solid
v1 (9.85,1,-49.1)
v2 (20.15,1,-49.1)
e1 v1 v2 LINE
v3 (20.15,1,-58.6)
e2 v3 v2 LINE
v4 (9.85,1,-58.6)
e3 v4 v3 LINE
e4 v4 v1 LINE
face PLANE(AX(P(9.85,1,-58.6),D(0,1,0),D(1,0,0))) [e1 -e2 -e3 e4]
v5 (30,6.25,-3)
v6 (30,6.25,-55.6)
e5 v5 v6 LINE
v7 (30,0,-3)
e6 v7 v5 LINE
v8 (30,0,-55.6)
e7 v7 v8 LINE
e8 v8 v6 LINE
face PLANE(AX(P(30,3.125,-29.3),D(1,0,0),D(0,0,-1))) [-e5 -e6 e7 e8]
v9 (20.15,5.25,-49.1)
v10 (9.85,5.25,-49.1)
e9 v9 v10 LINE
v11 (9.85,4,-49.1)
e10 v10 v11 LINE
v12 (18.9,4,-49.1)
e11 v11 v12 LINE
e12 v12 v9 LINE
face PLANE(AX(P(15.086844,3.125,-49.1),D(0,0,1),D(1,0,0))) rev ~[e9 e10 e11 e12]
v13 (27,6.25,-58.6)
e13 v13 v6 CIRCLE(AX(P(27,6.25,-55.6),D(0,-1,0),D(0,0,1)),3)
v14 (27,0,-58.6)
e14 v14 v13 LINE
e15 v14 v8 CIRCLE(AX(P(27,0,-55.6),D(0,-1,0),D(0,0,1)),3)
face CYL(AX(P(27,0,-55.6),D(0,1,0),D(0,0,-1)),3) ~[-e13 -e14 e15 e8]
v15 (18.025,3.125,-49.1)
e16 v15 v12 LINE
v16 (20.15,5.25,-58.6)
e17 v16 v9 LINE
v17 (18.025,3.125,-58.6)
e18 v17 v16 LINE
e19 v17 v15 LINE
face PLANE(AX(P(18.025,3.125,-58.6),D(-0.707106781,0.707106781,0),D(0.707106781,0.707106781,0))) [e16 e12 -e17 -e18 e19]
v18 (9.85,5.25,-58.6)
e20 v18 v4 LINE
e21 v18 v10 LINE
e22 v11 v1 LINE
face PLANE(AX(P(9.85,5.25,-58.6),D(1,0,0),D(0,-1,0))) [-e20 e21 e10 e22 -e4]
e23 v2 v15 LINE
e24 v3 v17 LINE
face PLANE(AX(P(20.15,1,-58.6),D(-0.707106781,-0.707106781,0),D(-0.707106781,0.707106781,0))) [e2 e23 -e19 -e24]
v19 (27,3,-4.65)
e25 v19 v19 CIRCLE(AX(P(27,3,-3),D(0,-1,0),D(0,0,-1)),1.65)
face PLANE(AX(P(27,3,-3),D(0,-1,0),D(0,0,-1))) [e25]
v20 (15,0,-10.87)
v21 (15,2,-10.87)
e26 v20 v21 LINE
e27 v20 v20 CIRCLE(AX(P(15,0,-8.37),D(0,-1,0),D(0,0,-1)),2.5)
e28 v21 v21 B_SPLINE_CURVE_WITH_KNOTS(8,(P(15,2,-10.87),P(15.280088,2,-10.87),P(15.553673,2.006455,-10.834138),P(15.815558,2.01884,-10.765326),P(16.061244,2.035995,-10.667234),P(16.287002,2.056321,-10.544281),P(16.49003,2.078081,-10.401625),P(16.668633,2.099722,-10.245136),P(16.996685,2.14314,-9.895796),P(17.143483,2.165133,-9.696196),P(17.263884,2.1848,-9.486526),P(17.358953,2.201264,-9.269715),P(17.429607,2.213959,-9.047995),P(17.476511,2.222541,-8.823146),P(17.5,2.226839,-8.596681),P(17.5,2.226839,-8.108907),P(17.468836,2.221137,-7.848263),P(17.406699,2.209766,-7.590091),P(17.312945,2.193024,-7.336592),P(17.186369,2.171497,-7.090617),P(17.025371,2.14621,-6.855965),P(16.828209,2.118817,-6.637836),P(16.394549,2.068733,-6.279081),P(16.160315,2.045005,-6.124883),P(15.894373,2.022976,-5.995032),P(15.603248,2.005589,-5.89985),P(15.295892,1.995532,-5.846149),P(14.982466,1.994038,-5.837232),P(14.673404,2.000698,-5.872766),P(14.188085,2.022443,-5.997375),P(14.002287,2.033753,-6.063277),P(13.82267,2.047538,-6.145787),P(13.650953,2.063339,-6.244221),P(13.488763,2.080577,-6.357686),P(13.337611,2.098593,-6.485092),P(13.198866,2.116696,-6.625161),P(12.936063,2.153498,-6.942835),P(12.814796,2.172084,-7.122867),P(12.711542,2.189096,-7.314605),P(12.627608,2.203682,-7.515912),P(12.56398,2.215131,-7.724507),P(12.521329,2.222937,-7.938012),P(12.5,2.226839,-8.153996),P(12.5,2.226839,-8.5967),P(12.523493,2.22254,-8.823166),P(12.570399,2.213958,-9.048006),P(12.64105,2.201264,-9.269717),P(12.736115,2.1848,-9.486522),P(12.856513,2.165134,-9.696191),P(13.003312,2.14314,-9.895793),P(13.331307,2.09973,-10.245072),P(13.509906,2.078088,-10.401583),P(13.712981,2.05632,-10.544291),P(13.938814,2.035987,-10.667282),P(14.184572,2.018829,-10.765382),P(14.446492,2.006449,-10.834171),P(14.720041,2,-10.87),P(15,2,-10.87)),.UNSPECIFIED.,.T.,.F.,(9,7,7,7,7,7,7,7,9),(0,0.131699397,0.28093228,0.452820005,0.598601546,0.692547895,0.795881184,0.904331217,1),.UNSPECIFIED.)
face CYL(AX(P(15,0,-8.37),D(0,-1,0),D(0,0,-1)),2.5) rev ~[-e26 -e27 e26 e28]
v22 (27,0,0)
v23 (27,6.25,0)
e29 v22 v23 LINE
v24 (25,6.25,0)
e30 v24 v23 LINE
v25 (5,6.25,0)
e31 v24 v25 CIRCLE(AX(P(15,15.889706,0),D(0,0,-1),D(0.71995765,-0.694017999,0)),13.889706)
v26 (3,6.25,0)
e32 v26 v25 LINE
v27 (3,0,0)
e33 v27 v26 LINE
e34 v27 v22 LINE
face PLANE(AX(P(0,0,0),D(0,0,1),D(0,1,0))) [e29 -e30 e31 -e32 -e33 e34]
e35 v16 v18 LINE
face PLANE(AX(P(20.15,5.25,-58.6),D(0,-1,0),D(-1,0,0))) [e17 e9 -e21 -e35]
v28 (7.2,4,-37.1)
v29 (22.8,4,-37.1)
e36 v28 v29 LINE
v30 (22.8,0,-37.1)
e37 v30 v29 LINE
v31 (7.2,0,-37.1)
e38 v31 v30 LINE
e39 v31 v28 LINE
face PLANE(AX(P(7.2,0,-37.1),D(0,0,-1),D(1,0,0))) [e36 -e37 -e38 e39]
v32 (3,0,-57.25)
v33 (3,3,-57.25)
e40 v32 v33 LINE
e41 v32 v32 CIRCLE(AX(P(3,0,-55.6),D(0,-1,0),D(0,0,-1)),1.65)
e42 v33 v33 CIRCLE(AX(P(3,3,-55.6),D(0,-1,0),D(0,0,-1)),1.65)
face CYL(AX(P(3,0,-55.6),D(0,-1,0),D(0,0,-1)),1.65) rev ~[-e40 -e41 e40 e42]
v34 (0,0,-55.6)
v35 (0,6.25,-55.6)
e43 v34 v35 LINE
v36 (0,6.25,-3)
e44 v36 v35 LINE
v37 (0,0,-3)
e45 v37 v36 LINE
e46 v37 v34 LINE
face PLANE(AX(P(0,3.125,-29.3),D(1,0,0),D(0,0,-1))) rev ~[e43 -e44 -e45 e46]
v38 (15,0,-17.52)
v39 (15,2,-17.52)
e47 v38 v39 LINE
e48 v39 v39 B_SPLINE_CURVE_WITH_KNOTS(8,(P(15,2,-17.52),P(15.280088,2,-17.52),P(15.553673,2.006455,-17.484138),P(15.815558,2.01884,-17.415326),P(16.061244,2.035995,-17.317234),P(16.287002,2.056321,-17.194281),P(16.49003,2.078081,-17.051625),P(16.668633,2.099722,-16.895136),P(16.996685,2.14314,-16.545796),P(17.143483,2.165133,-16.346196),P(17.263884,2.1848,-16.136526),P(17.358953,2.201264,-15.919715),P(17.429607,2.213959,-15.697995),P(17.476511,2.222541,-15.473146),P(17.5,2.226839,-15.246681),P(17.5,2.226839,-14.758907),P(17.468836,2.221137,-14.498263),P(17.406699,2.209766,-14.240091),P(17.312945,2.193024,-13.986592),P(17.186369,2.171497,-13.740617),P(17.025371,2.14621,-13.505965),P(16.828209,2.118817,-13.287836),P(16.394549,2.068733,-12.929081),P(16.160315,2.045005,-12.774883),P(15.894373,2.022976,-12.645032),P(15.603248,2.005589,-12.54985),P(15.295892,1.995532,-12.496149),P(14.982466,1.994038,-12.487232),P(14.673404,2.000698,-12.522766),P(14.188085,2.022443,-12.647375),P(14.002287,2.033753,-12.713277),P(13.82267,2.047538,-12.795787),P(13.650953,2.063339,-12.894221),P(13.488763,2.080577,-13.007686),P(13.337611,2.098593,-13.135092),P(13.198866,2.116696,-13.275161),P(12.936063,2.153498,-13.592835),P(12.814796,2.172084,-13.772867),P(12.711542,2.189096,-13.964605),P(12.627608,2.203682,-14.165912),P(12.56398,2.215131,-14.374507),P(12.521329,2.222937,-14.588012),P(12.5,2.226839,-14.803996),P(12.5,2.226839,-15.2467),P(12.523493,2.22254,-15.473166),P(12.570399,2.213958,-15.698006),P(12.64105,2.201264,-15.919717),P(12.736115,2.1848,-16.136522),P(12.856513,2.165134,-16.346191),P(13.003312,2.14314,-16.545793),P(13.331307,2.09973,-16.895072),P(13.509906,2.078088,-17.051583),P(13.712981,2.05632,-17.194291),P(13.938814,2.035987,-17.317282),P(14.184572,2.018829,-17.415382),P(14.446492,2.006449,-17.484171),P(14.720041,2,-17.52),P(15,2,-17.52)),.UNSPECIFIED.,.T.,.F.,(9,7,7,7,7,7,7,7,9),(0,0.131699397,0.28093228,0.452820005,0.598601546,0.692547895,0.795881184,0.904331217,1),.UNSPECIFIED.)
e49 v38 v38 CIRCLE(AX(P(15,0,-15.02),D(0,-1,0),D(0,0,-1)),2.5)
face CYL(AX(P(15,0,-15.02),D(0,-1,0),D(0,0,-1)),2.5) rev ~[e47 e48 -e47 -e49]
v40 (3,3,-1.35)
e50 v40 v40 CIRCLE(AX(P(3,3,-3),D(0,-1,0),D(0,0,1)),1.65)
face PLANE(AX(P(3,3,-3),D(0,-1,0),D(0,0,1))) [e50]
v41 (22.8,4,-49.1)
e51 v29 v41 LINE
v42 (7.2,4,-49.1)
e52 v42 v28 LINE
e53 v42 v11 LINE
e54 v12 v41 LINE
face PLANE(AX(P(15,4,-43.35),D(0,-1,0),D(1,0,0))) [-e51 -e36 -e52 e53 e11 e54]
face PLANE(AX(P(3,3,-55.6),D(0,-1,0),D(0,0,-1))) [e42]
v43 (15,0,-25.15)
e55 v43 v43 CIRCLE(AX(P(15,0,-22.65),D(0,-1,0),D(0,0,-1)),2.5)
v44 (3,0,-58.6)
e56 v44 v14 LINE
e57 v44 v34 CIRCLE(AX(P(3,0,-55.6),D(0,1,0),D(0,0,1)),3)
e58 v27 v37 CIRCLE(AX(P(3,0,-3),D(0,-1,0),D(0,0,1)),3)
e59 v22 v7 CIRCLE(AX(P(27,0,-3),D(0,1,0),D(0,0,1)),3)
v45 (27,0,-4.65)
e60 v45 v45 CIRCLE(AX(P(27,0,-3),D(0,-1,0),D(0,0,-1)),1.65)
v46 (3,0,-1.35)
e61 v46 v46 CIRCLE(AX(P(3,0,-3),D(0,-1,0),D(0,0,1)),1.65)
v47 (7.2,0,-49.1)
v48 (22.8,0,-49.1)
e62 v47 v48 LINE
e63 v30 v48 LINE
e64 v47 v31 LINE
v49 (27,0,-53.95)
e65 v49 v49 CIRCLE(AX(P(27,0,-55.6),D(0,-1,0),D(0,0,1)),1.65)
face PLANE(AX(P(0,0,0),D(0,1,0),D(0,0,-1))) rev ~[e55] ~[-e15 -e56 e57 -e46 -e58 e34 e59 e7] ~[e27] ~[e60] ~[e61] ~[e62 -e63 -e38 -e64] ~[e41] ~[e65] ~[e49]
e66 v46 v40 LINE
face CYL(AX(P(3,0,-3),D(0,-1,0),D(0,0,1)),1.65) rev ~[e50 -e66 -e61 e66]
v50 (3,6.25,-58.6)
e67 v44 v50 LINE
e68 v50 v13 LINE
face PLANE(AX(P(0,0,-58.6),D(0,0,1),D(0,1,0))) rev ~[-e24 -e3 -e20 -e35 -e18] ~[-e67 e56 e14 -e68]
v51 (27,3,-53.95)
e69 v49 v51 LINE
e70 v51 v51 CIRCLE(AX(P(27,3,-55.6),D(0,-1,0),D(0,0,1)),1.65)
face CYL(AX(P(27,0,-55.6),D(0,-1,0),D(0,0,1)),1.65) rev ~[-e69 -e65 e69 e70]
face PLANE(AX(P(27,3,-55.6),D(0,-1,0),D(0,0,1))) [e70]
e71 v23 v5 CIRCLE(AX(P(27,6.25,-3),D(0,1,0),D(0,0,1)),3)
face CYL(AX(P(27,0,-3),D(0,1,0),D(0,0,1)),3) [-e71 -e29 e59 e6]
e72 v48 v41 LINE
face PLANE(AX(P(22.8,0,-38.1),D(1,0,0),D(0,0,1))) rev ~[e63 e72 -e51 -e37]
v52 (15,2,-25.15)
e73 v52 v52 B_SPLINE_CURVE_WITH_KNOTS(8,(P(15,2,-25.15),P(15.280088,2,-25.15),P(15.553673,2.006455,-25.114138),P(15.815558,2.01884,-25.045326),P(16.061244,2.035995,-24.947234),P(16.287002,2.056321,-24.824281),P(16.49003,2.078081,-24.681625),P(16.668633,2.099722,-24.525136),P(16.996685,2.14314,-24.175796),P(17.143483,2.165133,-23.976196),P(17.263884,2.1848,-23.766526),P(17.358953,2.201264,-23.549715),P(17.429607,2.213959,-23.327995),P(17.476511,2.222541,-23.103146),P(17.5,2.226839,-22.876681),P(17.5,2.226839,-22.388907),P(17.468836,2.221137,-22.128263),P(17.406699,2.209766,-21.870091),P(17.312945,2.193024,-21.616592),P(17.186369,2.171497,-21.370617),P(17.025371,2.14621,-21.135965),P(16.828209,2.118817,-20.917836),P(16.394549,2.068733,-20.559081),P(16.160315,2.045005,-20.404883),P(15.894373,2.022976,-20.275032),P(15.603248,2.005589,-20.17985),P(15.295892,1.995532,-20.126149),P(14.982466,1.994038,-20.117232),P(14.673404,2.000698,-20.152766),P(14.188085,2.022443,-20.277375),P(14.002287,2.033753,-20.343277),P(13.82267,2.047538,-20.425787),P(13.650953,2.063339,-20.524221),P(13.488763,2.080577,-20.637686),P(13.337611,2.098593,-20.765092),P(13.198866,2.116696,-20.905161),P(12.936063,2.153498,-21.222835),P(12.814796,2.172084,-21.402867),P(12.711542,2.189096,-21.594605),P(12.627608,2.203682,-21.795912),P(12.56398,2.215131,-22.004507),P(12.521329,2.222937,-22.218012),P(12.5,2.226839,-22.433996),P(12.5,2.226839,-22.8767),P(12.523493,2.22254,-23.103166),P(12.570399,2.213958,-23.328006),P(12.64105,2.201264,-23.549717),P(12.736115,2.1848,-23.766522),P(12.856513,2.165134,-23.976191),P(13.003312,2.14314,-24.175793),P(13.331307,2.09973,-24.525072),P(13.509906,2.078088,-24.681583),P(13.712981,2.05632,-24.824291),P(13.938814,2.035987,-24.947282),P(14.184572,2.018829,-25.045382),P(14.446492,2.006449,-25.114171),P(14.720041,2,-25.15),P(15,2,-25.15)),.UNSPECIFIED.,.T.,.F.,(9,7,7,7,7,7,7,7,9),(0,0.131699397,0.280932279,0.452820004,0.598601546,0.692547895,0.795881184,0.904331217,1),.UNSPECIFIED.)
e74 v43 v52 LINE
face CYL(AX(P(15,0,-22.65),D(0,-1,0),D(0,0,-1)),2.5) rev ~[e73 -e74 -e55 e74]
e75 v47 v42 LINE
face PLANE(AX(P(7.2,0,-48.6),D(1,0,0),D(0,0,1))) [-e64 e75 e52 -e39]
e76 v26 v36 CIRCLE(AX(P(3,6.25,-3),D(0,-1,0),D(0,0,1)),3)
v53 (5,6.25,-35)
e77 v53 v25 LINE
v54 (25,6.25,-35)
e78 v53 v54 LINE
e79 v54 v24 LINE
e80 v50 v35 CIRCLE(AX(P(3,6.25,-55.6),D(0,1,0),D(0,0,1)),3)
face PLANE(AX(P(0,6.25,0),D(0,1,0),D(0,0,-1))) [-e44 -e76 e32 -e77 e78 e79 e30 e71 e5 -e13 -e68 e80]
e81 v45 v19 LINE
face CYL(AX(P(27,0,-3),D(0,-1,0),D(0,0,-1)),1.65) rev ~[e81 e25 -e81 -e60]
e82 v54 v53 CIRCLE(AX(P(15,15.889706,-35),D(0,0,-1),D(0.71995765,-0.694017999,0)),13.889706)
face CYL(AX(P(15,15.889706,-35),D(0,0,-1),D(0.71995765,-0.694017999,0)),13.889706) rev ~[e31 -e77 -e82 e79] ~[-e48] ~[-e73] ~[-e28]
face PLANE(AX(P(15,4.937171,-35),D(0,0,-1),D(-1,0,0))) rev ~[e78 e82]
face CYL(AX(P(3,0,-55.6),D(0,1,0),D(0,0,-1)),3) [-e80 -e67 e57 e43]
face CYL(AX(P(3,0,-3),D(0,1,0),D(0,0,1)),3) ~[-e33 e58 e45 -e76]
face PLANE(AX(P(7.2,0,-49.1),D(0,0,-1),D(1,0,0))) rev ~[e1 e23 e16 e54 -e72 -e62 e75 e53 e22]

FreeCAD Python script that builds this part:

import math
import FreeCAD as App
import Part
import Sketcher
Q = App.Units.Quantity


def edges_at(feature, points):
    """Names of the edges that pass closest to the given points."""
    edges = feature.Shape.Edges
    near = lambda p: min(range(len(edges)), key=lambda i: edges[i].distToShape(Part.Vertex(*p))[0])
    return sorted({f"Edge{near(p) + 1}" for p in points})

doc = App.newDocument("Part")
body = doc.addObject("PartDesign::Body", "Body")

# Sketch on YZ plane
sketch1 = doc.addObject("Sketcher::SketchObject", "Sketch")
body.addObject(sketch1)
sketch1.AttachmentSupport = (doc.YZ_Plane, [""])
sketch1.MapMode = "FlatFace"
sketch1.addGeometry(Part.LineSegment(App.Vector(6, 0, 0), App.Vector(0, 0, 0)), False)
sketch1.addGeometry(Part.LineSegment(App.Vector(0, 0, 0), App.Vector(0, -59, 0)), False)
sketch1.addGeometry(Part.LineSegment(App.Vector(0, -59, 0), App.Vector(6, -59, 0)), False)
sketch1.addGeometry(Part.LineSegment(App.Vector(6, -59, 0), App.Vector(6, 0, 0)), False)
sketch1.addConstraint(Sketcher.Constraint("Coincident", 0, 2, 1, 1))
sketch1.addConstraint(Sketcher.Constraint("Coincident", 1, 2, 2, 1))
sketch1.addConstraint(Sketcher.Constraint("Coincident", 2, 2, 3, 1))
sketch1.addConstraint(Sketcher.Constraint("Coincident", 3, 2, 0, 1))
sketch1.addConstraint(Sketcher.Constraint("Horizontal", 0))
sketch1.addConstraint(Sketcher.Constraint("Vertical", 1))
sketch1.addConstraint(Sketcher.Constraint("Horizontal", 2))
sketch1.addConstraint(Sketcher.Constraint("Vertical", 3))
sketch1.addConstraint(Sketcher.Constraint("Coincident", 0, 2, -1, 1))
sketch1.addConstraint(Sketcher.Constraint("DistanceY", 1, 2, 1, 1, Q("58.6 mm")))
sketch1.addConstraint(Sketcher.Constraint("DistanceX", 0, 2, 0, 1, Q("6.25 mm")))
pad1 = doc.addObject("PartDesign::Pad", "Pad")
body.addObject(pad1)
pad1.Profile = sketch1
pad1.Length = 30

# Sketch on XY plane
sketch2 = doc.addObject("Sketcher::SketchObject", "Sketch001")
body.addObject(sketch2)
sketch2.AttachmentSupport = (doc.XY_Plane, [""])
sketch2.MapMode = "FlatFace"
sketch2.addGeometry(Part.LineSegment(App.Vector(25, 6, 0), App.Vector(5, 6, 0)), False)
sketch2.addGeometry(Part.ArcOfCircle(Part.Circle(App.Vector(15, 16, 0), App.Vector(0, 0, 1), 14), math.radians(-136), math.radians(-44)), False)
sketch2.addConstraint(Sketcher.Constraint("Coincident", 0, 1, 1, 2))
sketch2.addConstraint(Sketcher.Constraint("Coincident", 1, 1, 0, 2))
sketch2.addConstraint(Sketcher.Constraint("Horizontal", 0))
sketch2.addConstraint(Sketcher.Constraint("DistanceX", 0, 2, 0, 1, Q("20 mm")))
sketch2.addConstraint(Sketcher.Constraint("DistanceX", -1, 1, 1, 3, Q("15 mm")))
sketch2.addConstraint(Sketcher.Constraint("DistanceY", -1, 1, 0, 1, Q("6.25 mm")))
sketch2.addConstraint(Sketcher.Constraint("Radius", 1, Q("13.889706 mm")))
pocket1 = doc.addObject("PartDesign::Pocket", "Pocket")
body.addObject(pocket1)
pocket1.Profile = sketch2
pocket1.Type = "TwoLengths"
pocket1.Length = 67.128833
pocket1.Length2 = 35
pocket1.Reversed = True

# Sketch on XZ plane
sketch3 = doc.addObject("Sketcher::SketchObject", "Sketch002")
body.addObject(sketch3)
sketch3.AttachmentSupport = (doc.XZ_Plane, [""])
sketch3.MapMode = "FlatFace"
sketch3.addGeometry(Part.Circle(App.Vector(15, -8.4, 0), App.Vector(0, 0, 1), 2.5), False)
sketch3.addGeometry(Part.Circle(App.Vector(15, -15, 0), App.Vector(0, 0, 1), 2.5), False)
sketch3.addGeometry(Part.Circle(App.Vector(15, -22.6, 0), App.Vector(0, 0, 1), 2.5), False)
sketch3.addGeometry(Part.LineSegment(App.Vector(7.2, -38.1, 0), App.Vector(7.2, -48.6, 0)), False)
sketch3.addGeometry(Part.LineSegment(App.Vector(7.2, -48.6, 0), App.Vector(22.8, -48.6, 0)), False)
sketch3.addGeometry(Part.LineSegment(App.Vector(22.8, -48.6, 0), App.Vector(22.8, -38.1, 0)), False)
sketch3.addGeometry(Part.LineSegment(App.Vector(22.8, -38.1, 0), App.Vector(7.2, -38.1, 0)), False)
sketch3.addConstraint(Sketcher.Constraint("Coincident", 3, 2, 4, 1))
sketch3.addConstraint(Sketcher.Constraint("Coincident", 4, 2, 5, 1))
sketch3.addConstraint(Sketcher.Constraint("Coincident", 5, 2, 6, 1))
sketch3.addConstraint(Sketcher.Constraint("Coincident", 6, 2, 3, 1))
sketch3.addConstraint(Sketcher.Constraint("Vertical", 3))
sketch3.addConstraint(Sketcher.Constraint("Horizontal", 4))
sketch3.addConstraint(Sketcher.Constraint("Vertical", 5))
sketch3.addConstraint(Sketcher.Constraint("Horizontal", 6))
sketch3.addConstraint(Sketcher.Constraint("Equal", 0, 1))
sketch3.addConstraint(Sketcher.Constraint("Equal", 1, 2))
sketch3.addConstraint(Sketcher.Constraint("Vertical", 0, 3, 1, 3))
sketch3.addConstraint(Sketcher.Constraint("Vertical", 1, 3, 2, 3))
sketch3.addConstraint(Sketcher.Constraint("Diameter", 0, Q("5 mm")))
sketch3.addConstraint(Sketcher.Constraint("DistanceX", 4, 1, 4, 2, Q("15.6 mm")))
sketch3.addConstraint(Sketcher.Constraint("DistanceY", 3, 2, 3, 1, Q("10.5 mm")))
sketch3.addConstraint(Sketcher.Constraint("DistanceX", -1, 1, 0, 3, Q("15 mm")))
sketch3.addConstraint(Sketcher.Constraint("DistanceX", -1, 1, 3, 2, Q("7.2 mm")))
sketch3.addConstraint(Sketcher.Constraint("DistanceY", 3, 2, -1, 1, Q("48.6 mm")))
sketch3.addConstraint(Sketcher.Constraint("DistanceY", 0, 3, -1, 1, Q("8.37 mm")))
sketch3.addConstraint(Sketcher.Constraint("DistanceY", 1, 3, -1, 1, Q("15.02 mm")))
sketch3.addConstraint(Sketcher.Constraint("DistanceY", 2, 3, -1, 1, Q("22.65 mm")))
pocket2 = doc.addObject("PartDesign::Pocket", "Pocket001")
body.addObject(pocket2)
pocket2.Profile = sketch3
pocket2.Length = 4

# Sketch on XY plane
sketch4 = doc.addObject("Sketcher::SketchObject", "Sketch003")
body.addObject(sketch4)
sketch4.AttachmentSupport = (doc.XY_Plane, [""])
sketch4.MapMode = "FlatFace"
sketch4.AttachmentOffset = App.Placement(App.Vector(0, 0, -58.6), App.Rotation())
sketch4.addGeometry(Part.LineSegment(App.Vector(20.1, 1, 0), App.Vector(9.8, 1, 0)), False)
sketch4.addGeometry(Part.LineSegment(App.Vector(9.8, 1, 0), App.Vector(9.8, 5.2, 0)), False)
sketch4.addGeometry(Part.LineSegment(App.Vector(9.8, 5.2, 0), App.Vector(20.1, 5.2, 0)), False)
sketch4.addGeometry(Part.LineSegment(App.Vector(20.1, 5.2, 0), App.Vector(18, 3.1, 0)), False)
sketch4.addGeometry(Part.LineSegment(App.Vector(18, 3.1, 0), App.Vector(20.1, 1, 0)), False)
sketch4.addConstraint(Sketcher.Constraint("Coincident", 0, 2, 1, 1))
sketch4.addConstraint(Sketcher.Constraint("Coincident", 1, 2, 2, 1))
sketch4.addConstraint(Sketcher.Constraint("Coincident", 2, 2, 3, 1))
sketch4.addConstraint(Sketcher.Constraint("Coincident", 3, 2, 4, 1))
sketch4.addConstraint(Sketcher.Constraint("Coincident", 4, 2, 0, 1))
sketch4.addConstraint(Sketcher.Constraint("Horizontal", 0))
sketch4.addConstraint(Sketcher.Constraint("Vertical", 1))
sketch4.addConstraint(Sketcher.Constraint("Horizontal", 2))
sketch4.addConstraint(Sketcher.Constraint("Perpendicular", 3, 4))
sketch4.addConstraint(Sketcher.Constraint("Vertical", 2, 2, 4, 2))
sketch4.addConstraint(Sketcher.Constraint("Equal", 3, 4))
sketch4.addConstraint(Sketcher.Constraint("DistanceX", 0, 2, 0, 1, Q("10.3 mm")))
sketch4.addConstraint(Sketcher.Constraint("DistanceY", -1, 1, 0, 2, Q("1 mm")))
sketch4.addConstraint(Sketcher.Constraint("DistanceY", 1, 1, 1, 2, Q("4.25 mm")))
sketch4.addConstraint(Sketcher.Constraint("DistanceX", -1, 1, 0, 2, Q("9.85 mm")))
pocket3 = doc.addObject("PartDesign::Pocket", "Pocket002")
body.addObject(pocket3)
pocket3.Profile = sketch4
pocket3.Length = 9.5
pocket3.Reversed = True

# Sketch on XZ plane
sketch5 = doc.addObject("Sketcher::SketchObject", "Sketch004")
body.addObject(sketch5)
sketch5.AttachmentSupport = (doc.XZ_Plane, [""])
sketch5.MapMode = "FlatFace"
sketch5.addGeometry(Part.LineSegment(App.Vector(7.2, -37.1, 0), App.Vector(7.2, -38.1, 0)), False)
sketch5.addGeometry(Part.LineSegment(App.Vector(7.2, -38.1, 0), App.Vector(22.8, -38.1, 0)), False)
sketch5.addGeometry(Part.LineSegment(App.Vector(22.8, -38.1, 0), App.Vector(22.8, -37.1, 0)), False)
sketch5.addGeometry(Part.LineSegment(App.Vector(22.8, -37.1, 0), App.Vector(7.2, -37.1, 0)), False)
sketch5.addGeometry(Part.LineSegment(App.Vector(7.2, -48.6, 0), App.Vector(7.2, -49.1, 0)), False)
sketch5.addGeometry(Part.LineSegment(App.Vector(7.2, -49.1, 0), App.Vector(22.8, -49.1, 0)), False)
sketch5.addGeometry(Part.LineSegment(App.Vector(22.8, -49.1, 0), App.Vector(22.8, -48.6, 0)), False)
sketch5.addGeometry(Part.LineSegment(App.Vector(22.8, -48.6, 0), App.Vector(7.2, -48.6, 0)), False)
sketch5.addConstraint(Sketcher.Constraint("Coincident", 0, 2, 1, 1))
sketch5.addConstraint(Sketcher.Constraint("Coincident", 1, 2, 2, 1))
sketch5.addConstraint(Sketcher.Constraint("Coincident", 2, 2, 3, 1))
sketch5.addConstraint(Sketcher.Constraint("Coincident", 3, 2, 0, 1))
sketch5.addConstraint(Sketcher.Constraint("Coincident", 4, 2, 5, 1))
sketch5.addConstraint(Sketcher.Constraint("Coincident", 5, 2, 6, 1))
sketch5.addConstraint(Sketcher.Constraint("Coincident", 6, 2, 7, 1))
sketch5.addConstraint(Sketcher.Constraint("Coincident", 7, 2, 4, 1))
sketch5.addConstraint(Sketcher.Constraint("Vertical", 0))
sketch5.addConstraint(Sketcher.Constraint("Horizontal", 1))
sketch5.addConstraint(Sketcher.Constraint("Vertical", 2))
sketch5.addConstraint(Sketcher.Constraint("Horizontal", 3))
sketch5.addConstraint(Sketcher.Constraint("Vertical", 4))
sketch5.addConstraint(Sketcher.Constraint("Horizontal", 5))
sketch5.addConstraint(Sketcher.Constraint("Vertical", 6))
sketch5.addConstraint(Sketcher.Constraint("Horizontal", 7))
sketch5.addConstraint(Sketcher.Constraint("Vertical", 3, 2, 4, 2))
sketch5.addConstraint(Sketcher.Constraint("Vertical", 2, 2, 5, 2))
sketch5.addConstraint(Sketcher.Constraint("DistanceY", 0, 2, 0, 1, Q("1 mm")))
sketch5.addConstraint(Sketcher.Constraint("DistanceX", 1, 1, 1, 2, Q("15.6 mm")))
sketch5.addConstraint(Sketcher.Constraint("DistanceY", 4, 2, 4, 1, Q("0.5 mm")))
sketch5.addConstraint(Sketcher.Constraint("DistanceY", 4, 2, 0, 2, Q("11 mm")))
sketch5.addConstraint(Sketcher.Constraint("DistanceX", -1, 1, 0, 2, Q("7.2 mm")))
sketch5.addConstraint(Sketcher.Constraint("DistanceY", 0, 2, -1, 1, Q("38.1 mm")))
pocket4 = doc.addObject("PartDesign::Pocket", "Pocket003")
body.addObject(pocket4)
pocket4.Profile = sketch5
pocket4.Length = 4
doc.recompute()

fillet = doc.addObject("PartDesign::Fillet", "Fillet")
body.addObject(fillet)
fillet.Base = (pocket4, edges_at(pocket4, [
    (30, 3.125, -58.6),
    (30, 3.125, 0),
    (0, 3.125, -58.6),
    (0, 3.125, 0),
]))
fillet.Radius = 3

# Sketch on XZ plane
sketch6 = doc.addObject("Sketcher::SketchObject", "Sketch005")
body.addObject(sketch6)
sketch6.AttachmentSupport = (doc.XZ_Plane, [""])
sketch6.MapMode = "FlatFace"
sketch6.addGeometry(Part.Circle(App.Vector(3, -55.6, 0), App.Vector(0, 0, 1), 1.6), False)
sketch6.addGeometry(Part.Circle(App.Vector(27, -55.6, 0), App.Vector(0, 0, 1), 1.6), False)
sketch6.addGeometry(Part.Circle(App.Vector(27, -3, 0), App.Vector(0, 0, 1), 1.6), False)
sketch6.addGeometry(Part.Circle(App.Vector(3, -3, 0), App.Vector(0, 0, 1), 1.6), False)
sketch6.addConstraint(Sketcher.Constraint("Equal", 0, 1))
sketch6.addConstraint(Sketcher.Constraint("Equal", 1, 2))
sketch6.addConstraint(Sketcher.Constraint("Equal", 2, 3))
sketch6.addConstraint(Sketcher.Constraint("Horizontal", 0, 3, 1, 3))
sketch6.addConstraint(Sketcher.Constraint("Horizontal", 2, 3, 3, 3))
sketch6.addConstraint(Sketcher.Constraint("Vertical", 1, 3, 2, 3))
sketch6.addConstraint(Sketcher.Constraint("Vertical", 0, 3, 3, 3))
sketch6.addConstraint(Sketcher.Constraint("Diameter", 0, Q("3.3 mm")))
sketch6.addConstraint(Sketcher.Constraint("DistanceX", -1, 1, 0, 3, Q("3 mm")))
sketch6.addConstraint(Sketcher.Constraint("DistanceX", -1, 1, 1, 3, Q("27 mm")))
sketch6.addConstraint(Sketcher.Constraint("DistanceY", 2, 3, -1, 1, Q("3 mm")))
sketch6.addConstraint(Sketcher.Constraint("DistanceY", 0, 3, -1, 1, Q("55.6 mm")))
pocket5 = doc.addObject("PartDesign::Pocket", "Pocket004")
body.addObject(pocket5)
pocket5.Profile = sketch6
pocket5.Length = 3

doc.recompute()
